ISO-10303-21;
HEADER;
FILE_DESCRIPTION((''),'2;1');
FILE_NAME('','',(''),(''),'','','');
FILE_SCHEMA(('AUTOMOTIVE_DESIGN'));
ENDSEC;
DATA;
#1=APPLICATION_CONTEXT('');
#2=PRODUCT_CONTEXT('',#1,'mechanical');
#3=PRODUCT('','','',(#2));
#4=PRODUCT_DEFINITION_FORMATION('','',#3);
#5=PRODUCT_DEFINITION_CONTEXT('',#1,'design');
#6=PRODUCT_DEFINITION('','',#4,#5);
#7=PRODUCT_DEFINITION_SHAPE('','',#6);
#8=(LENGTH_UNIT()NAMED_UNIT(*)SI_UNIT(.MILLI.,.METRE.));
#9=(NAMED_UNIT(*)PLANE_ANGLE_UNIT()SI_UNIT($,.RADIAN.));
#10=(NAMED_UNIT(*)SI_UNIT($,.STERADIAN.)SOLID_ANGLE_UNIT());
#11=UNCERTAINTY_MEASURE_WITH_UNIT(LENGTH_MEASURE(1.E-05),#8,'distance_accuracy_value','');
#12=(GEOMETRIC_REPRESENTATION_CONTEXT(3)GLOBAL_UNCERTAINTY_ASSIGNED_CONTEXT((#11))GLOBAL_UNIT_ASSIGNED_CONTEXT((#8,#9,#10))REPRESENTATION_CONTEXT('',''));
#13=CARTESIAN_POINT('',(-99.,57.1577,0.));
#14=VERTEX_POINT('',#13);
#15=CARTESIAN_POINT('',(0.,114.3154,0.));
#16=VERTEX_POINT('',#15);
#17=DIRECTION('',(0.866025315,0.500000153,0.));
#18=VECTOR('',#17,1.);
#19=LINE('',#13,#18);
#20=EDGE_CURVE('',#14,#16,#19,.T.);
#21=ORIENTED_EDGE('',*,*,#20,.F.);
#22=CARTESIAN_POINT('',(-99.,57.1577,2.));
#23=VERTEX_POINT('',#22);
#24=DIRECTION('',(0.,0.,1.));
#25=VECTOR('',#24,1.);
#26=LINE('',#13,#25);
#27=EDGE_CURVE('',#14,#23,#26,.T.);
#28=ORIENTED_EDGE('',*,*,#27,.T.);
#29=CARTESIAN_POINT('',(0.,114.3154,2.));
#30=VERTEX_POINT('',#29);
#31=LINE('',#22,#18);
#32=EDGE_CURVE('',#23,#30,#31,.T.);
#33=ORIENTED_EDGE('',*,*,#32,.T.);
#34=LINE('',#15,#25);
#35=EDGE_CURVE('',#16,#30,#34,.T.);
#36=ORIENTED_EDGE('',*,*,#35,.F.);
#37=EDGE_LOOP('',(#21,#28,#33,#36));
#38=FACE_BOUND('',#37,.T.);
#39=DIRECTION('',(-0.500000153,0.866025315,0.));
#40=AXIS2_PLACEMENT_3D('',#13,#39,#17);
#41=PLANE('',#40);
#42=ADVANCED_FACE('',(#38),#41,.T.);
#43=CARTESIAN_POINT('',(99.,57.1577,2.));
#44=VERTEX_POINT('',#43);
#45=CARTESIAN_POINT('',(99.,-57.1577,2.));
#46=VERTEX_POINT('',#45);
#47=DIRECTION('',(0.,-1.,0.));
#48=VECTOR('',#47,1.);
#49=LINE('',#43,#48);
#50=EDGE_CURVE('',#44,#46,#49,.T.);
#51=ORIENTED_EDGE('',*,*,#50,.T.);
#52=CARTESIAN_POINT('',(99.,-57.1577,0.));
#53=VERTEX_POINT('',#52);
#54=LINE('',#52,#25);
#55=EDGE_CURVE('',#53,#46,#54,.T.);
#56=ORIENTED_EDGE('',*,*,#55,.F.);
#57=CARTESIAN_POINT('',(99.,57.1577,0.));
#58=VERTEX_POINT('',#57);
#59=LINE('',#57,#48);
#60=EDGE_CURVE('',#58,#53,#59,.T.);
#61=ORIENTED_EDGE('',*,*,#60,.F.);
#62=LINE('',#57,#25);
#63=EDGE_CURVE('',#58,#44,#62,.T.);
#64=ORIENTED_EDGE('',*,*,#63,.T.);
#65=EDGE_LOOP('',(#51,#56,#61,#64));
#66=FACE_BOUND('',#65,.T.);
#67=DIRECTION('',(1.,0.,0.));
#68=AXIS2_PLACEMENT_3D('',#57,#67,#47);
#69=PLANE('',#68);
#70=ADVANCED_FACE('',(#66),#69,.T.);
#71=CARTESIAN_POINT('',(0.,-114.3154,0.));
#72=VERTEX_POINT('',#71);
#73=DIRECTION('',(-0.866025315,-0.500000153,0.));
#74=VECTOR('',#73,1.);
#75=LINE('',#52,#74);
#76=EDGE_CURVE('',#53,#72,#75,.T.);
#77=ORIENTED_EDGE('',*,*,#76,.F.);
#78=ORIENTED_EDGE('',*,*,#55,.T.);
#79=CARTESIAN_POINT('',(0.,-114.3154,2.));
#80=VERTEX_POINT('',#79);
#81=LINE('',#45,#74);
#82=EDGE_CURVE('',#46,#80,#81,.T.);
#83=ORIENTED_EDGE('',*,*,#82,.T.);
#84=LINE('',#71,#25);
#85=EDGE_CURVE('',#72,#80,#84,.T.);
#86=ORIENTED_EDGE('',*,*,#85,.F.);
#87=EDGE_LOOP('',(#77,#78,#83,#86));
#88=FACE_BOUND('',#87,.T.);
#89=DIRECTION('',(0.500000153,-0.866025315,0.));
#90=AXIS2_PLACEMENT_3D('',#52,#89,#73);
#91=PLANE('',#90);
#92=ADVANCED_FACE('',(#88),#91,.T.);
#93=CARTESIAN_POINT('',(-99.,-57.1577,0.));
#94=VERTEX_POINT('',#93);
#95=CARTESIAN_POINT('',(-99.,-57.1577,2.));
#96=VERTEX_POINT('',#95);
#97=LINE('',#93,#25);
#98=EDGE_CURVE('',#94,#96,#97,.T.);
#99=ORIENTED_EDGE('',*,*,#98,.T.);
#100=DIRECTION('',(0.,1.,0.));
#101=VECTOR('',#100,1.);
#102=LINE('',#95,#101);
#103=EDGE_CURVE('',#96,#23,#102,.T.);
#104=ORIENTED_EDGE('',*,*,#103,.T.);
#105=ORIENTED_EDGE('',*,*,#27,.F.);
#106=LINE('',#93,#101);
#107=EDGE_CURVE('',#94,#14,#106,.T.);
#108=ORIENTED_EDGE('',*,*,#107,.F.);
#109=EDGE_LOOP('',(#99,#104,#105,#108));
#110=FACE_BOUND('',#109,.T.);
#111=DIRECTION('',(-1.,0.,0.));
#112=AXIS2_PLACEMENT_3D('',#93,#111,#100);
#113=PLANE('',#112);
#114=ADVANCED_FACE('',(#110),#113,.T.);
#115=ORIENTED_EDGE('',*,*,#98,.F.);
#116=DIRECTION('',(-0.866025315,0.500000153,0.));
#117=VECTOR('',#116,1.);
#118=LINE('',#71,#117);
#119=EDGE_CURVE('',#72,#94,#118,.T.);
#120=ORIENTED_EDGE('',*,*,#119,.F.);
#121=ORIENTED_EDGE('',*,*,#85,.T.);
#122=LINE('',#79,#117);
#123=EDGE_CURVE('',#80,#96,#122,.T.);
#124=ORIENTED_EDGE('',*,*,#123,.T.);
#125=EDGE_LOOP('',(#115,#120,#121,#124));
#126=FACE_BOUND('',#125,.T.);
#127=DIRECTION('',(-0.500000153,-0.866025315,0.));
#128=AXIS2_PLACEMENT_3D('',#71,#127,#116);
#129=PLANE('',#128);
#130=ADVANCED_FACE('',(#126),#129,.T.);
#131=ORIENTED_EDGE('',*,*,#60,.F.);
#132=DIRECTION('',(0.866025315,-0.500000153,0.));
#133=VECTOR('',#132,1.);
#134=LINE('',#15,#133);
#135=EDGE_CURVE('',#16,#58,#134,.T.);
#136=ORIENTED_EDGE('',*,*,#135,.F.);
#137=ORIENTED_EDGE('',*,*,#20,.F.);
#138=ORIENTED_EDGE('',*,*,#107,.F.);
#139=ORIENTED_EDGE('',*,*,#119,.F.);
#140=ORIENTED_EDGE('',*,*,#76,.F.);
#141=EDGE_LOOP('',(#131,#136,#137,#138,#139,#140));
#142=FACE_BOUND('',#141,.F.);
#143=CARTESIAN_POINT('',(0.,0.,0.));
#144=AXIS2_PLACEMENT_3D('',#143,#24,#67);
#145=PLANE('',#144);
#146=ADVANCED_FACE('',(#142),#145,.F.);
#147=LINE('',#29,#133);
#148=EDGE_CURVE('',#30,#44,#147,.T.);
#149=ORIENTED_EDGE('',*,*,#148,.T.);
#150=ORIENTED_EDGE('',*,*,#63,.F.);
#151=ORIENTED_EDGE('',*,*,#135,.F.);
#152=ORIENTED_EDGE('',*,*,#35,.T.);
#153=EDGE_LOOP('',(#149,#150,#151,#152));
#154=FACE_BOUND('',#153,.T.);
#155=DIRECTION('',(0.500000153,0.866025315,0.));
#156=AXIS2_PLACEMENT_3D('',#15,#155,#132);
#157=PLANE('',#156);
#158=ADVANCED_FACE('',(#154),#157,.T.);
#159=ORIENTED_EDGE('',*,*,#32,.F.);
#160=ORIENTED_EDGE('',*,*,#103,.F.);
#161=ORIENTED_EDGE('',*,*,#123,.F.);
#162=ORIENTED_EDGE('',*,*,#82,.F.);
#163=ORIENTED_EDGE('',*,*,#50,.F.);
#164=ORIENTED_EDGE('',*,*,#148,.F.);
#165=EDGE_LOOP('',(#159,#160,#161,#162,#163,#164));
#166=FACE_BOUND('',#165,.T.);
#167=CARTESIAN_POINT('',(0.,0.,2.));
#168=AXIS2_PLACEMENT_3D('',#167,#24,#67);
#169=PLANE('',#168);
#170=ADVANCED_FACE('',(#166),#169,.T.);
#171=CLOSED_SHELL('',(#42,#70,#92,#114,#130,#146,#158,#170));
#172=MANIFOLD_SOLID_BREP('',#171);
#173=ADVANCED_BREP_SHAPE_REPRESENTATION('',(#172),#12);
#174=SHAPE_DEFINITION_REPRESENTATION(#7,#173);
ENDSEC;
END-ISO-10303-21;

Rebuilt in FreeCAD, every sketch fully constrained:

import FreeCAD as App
import Part
import Sketcher
from FreeCAD import Vector
Q = App.Units.Quantity


def add_polygon(sketch, points):
    """Adds a closed chain of lines whose ends are joined by coincident constraints."""
    first, n = sketch.GeometryCount, len(points)
    for a, b in zip(points, points[1:] + points[:1]):
        sketch.addGeometry(Part.LineSegment(App.Vector(*a, 0), App.Vector(*b, 0)), False)
    for i in range(n):
        sketch.addConstraint(Sketcher.Constraint("Coincident", first + i, 2, first + (i + 1) % n, 1))

doc = App.newDocument("Part")
body = doc.addObject("PartDesign::Body", "Body")

sketch1 = body.newObject("Sketcher::SketchObject", "Sketch")
sketch1.AttachmentSupport = (doc.getObject("XY_Plane"), [""])
sketch1.MapMode = "FlatFace"
add_polygon(sketch1, [(0, -114), (99, -57), (99, 57), (0, 114), (-99, 57), (-99, -57)])
sketch1.addConstraint([
    Sketcher.Constraint("Vertical", 1),
    Sketcher.Constraint("Vertical", 4),
    Sketcher.Constraint("Symmetric", 0, 2, 3, 2, -1, 1),
    Sketcher.Constraint("Symmetric", 2, 2, 5, 2, -1, 1),
    Sketcher.Constraint("PointOnObject", 2, 2, -2),
    Sketcher.Constraint("Parallel", 2, 5),
    Sketcher.Constraint("Horizontal", 1, 2, 3, 2),
    Sketcher.Constraint("DistanceX", 3, 2, 1, 2, 198.0),
    Sketcher.Constraint("Angle", 0, Q("30 deg")),
    Sketcher.Constraint("DistanceY", 1, 1, 1, 2, 114.3154),
])
pad1 = body.newObject("PartDesign::Pad", "Pad")
pad1.Profile = sketch1
pad1.Length = 2

doc.recompute()
